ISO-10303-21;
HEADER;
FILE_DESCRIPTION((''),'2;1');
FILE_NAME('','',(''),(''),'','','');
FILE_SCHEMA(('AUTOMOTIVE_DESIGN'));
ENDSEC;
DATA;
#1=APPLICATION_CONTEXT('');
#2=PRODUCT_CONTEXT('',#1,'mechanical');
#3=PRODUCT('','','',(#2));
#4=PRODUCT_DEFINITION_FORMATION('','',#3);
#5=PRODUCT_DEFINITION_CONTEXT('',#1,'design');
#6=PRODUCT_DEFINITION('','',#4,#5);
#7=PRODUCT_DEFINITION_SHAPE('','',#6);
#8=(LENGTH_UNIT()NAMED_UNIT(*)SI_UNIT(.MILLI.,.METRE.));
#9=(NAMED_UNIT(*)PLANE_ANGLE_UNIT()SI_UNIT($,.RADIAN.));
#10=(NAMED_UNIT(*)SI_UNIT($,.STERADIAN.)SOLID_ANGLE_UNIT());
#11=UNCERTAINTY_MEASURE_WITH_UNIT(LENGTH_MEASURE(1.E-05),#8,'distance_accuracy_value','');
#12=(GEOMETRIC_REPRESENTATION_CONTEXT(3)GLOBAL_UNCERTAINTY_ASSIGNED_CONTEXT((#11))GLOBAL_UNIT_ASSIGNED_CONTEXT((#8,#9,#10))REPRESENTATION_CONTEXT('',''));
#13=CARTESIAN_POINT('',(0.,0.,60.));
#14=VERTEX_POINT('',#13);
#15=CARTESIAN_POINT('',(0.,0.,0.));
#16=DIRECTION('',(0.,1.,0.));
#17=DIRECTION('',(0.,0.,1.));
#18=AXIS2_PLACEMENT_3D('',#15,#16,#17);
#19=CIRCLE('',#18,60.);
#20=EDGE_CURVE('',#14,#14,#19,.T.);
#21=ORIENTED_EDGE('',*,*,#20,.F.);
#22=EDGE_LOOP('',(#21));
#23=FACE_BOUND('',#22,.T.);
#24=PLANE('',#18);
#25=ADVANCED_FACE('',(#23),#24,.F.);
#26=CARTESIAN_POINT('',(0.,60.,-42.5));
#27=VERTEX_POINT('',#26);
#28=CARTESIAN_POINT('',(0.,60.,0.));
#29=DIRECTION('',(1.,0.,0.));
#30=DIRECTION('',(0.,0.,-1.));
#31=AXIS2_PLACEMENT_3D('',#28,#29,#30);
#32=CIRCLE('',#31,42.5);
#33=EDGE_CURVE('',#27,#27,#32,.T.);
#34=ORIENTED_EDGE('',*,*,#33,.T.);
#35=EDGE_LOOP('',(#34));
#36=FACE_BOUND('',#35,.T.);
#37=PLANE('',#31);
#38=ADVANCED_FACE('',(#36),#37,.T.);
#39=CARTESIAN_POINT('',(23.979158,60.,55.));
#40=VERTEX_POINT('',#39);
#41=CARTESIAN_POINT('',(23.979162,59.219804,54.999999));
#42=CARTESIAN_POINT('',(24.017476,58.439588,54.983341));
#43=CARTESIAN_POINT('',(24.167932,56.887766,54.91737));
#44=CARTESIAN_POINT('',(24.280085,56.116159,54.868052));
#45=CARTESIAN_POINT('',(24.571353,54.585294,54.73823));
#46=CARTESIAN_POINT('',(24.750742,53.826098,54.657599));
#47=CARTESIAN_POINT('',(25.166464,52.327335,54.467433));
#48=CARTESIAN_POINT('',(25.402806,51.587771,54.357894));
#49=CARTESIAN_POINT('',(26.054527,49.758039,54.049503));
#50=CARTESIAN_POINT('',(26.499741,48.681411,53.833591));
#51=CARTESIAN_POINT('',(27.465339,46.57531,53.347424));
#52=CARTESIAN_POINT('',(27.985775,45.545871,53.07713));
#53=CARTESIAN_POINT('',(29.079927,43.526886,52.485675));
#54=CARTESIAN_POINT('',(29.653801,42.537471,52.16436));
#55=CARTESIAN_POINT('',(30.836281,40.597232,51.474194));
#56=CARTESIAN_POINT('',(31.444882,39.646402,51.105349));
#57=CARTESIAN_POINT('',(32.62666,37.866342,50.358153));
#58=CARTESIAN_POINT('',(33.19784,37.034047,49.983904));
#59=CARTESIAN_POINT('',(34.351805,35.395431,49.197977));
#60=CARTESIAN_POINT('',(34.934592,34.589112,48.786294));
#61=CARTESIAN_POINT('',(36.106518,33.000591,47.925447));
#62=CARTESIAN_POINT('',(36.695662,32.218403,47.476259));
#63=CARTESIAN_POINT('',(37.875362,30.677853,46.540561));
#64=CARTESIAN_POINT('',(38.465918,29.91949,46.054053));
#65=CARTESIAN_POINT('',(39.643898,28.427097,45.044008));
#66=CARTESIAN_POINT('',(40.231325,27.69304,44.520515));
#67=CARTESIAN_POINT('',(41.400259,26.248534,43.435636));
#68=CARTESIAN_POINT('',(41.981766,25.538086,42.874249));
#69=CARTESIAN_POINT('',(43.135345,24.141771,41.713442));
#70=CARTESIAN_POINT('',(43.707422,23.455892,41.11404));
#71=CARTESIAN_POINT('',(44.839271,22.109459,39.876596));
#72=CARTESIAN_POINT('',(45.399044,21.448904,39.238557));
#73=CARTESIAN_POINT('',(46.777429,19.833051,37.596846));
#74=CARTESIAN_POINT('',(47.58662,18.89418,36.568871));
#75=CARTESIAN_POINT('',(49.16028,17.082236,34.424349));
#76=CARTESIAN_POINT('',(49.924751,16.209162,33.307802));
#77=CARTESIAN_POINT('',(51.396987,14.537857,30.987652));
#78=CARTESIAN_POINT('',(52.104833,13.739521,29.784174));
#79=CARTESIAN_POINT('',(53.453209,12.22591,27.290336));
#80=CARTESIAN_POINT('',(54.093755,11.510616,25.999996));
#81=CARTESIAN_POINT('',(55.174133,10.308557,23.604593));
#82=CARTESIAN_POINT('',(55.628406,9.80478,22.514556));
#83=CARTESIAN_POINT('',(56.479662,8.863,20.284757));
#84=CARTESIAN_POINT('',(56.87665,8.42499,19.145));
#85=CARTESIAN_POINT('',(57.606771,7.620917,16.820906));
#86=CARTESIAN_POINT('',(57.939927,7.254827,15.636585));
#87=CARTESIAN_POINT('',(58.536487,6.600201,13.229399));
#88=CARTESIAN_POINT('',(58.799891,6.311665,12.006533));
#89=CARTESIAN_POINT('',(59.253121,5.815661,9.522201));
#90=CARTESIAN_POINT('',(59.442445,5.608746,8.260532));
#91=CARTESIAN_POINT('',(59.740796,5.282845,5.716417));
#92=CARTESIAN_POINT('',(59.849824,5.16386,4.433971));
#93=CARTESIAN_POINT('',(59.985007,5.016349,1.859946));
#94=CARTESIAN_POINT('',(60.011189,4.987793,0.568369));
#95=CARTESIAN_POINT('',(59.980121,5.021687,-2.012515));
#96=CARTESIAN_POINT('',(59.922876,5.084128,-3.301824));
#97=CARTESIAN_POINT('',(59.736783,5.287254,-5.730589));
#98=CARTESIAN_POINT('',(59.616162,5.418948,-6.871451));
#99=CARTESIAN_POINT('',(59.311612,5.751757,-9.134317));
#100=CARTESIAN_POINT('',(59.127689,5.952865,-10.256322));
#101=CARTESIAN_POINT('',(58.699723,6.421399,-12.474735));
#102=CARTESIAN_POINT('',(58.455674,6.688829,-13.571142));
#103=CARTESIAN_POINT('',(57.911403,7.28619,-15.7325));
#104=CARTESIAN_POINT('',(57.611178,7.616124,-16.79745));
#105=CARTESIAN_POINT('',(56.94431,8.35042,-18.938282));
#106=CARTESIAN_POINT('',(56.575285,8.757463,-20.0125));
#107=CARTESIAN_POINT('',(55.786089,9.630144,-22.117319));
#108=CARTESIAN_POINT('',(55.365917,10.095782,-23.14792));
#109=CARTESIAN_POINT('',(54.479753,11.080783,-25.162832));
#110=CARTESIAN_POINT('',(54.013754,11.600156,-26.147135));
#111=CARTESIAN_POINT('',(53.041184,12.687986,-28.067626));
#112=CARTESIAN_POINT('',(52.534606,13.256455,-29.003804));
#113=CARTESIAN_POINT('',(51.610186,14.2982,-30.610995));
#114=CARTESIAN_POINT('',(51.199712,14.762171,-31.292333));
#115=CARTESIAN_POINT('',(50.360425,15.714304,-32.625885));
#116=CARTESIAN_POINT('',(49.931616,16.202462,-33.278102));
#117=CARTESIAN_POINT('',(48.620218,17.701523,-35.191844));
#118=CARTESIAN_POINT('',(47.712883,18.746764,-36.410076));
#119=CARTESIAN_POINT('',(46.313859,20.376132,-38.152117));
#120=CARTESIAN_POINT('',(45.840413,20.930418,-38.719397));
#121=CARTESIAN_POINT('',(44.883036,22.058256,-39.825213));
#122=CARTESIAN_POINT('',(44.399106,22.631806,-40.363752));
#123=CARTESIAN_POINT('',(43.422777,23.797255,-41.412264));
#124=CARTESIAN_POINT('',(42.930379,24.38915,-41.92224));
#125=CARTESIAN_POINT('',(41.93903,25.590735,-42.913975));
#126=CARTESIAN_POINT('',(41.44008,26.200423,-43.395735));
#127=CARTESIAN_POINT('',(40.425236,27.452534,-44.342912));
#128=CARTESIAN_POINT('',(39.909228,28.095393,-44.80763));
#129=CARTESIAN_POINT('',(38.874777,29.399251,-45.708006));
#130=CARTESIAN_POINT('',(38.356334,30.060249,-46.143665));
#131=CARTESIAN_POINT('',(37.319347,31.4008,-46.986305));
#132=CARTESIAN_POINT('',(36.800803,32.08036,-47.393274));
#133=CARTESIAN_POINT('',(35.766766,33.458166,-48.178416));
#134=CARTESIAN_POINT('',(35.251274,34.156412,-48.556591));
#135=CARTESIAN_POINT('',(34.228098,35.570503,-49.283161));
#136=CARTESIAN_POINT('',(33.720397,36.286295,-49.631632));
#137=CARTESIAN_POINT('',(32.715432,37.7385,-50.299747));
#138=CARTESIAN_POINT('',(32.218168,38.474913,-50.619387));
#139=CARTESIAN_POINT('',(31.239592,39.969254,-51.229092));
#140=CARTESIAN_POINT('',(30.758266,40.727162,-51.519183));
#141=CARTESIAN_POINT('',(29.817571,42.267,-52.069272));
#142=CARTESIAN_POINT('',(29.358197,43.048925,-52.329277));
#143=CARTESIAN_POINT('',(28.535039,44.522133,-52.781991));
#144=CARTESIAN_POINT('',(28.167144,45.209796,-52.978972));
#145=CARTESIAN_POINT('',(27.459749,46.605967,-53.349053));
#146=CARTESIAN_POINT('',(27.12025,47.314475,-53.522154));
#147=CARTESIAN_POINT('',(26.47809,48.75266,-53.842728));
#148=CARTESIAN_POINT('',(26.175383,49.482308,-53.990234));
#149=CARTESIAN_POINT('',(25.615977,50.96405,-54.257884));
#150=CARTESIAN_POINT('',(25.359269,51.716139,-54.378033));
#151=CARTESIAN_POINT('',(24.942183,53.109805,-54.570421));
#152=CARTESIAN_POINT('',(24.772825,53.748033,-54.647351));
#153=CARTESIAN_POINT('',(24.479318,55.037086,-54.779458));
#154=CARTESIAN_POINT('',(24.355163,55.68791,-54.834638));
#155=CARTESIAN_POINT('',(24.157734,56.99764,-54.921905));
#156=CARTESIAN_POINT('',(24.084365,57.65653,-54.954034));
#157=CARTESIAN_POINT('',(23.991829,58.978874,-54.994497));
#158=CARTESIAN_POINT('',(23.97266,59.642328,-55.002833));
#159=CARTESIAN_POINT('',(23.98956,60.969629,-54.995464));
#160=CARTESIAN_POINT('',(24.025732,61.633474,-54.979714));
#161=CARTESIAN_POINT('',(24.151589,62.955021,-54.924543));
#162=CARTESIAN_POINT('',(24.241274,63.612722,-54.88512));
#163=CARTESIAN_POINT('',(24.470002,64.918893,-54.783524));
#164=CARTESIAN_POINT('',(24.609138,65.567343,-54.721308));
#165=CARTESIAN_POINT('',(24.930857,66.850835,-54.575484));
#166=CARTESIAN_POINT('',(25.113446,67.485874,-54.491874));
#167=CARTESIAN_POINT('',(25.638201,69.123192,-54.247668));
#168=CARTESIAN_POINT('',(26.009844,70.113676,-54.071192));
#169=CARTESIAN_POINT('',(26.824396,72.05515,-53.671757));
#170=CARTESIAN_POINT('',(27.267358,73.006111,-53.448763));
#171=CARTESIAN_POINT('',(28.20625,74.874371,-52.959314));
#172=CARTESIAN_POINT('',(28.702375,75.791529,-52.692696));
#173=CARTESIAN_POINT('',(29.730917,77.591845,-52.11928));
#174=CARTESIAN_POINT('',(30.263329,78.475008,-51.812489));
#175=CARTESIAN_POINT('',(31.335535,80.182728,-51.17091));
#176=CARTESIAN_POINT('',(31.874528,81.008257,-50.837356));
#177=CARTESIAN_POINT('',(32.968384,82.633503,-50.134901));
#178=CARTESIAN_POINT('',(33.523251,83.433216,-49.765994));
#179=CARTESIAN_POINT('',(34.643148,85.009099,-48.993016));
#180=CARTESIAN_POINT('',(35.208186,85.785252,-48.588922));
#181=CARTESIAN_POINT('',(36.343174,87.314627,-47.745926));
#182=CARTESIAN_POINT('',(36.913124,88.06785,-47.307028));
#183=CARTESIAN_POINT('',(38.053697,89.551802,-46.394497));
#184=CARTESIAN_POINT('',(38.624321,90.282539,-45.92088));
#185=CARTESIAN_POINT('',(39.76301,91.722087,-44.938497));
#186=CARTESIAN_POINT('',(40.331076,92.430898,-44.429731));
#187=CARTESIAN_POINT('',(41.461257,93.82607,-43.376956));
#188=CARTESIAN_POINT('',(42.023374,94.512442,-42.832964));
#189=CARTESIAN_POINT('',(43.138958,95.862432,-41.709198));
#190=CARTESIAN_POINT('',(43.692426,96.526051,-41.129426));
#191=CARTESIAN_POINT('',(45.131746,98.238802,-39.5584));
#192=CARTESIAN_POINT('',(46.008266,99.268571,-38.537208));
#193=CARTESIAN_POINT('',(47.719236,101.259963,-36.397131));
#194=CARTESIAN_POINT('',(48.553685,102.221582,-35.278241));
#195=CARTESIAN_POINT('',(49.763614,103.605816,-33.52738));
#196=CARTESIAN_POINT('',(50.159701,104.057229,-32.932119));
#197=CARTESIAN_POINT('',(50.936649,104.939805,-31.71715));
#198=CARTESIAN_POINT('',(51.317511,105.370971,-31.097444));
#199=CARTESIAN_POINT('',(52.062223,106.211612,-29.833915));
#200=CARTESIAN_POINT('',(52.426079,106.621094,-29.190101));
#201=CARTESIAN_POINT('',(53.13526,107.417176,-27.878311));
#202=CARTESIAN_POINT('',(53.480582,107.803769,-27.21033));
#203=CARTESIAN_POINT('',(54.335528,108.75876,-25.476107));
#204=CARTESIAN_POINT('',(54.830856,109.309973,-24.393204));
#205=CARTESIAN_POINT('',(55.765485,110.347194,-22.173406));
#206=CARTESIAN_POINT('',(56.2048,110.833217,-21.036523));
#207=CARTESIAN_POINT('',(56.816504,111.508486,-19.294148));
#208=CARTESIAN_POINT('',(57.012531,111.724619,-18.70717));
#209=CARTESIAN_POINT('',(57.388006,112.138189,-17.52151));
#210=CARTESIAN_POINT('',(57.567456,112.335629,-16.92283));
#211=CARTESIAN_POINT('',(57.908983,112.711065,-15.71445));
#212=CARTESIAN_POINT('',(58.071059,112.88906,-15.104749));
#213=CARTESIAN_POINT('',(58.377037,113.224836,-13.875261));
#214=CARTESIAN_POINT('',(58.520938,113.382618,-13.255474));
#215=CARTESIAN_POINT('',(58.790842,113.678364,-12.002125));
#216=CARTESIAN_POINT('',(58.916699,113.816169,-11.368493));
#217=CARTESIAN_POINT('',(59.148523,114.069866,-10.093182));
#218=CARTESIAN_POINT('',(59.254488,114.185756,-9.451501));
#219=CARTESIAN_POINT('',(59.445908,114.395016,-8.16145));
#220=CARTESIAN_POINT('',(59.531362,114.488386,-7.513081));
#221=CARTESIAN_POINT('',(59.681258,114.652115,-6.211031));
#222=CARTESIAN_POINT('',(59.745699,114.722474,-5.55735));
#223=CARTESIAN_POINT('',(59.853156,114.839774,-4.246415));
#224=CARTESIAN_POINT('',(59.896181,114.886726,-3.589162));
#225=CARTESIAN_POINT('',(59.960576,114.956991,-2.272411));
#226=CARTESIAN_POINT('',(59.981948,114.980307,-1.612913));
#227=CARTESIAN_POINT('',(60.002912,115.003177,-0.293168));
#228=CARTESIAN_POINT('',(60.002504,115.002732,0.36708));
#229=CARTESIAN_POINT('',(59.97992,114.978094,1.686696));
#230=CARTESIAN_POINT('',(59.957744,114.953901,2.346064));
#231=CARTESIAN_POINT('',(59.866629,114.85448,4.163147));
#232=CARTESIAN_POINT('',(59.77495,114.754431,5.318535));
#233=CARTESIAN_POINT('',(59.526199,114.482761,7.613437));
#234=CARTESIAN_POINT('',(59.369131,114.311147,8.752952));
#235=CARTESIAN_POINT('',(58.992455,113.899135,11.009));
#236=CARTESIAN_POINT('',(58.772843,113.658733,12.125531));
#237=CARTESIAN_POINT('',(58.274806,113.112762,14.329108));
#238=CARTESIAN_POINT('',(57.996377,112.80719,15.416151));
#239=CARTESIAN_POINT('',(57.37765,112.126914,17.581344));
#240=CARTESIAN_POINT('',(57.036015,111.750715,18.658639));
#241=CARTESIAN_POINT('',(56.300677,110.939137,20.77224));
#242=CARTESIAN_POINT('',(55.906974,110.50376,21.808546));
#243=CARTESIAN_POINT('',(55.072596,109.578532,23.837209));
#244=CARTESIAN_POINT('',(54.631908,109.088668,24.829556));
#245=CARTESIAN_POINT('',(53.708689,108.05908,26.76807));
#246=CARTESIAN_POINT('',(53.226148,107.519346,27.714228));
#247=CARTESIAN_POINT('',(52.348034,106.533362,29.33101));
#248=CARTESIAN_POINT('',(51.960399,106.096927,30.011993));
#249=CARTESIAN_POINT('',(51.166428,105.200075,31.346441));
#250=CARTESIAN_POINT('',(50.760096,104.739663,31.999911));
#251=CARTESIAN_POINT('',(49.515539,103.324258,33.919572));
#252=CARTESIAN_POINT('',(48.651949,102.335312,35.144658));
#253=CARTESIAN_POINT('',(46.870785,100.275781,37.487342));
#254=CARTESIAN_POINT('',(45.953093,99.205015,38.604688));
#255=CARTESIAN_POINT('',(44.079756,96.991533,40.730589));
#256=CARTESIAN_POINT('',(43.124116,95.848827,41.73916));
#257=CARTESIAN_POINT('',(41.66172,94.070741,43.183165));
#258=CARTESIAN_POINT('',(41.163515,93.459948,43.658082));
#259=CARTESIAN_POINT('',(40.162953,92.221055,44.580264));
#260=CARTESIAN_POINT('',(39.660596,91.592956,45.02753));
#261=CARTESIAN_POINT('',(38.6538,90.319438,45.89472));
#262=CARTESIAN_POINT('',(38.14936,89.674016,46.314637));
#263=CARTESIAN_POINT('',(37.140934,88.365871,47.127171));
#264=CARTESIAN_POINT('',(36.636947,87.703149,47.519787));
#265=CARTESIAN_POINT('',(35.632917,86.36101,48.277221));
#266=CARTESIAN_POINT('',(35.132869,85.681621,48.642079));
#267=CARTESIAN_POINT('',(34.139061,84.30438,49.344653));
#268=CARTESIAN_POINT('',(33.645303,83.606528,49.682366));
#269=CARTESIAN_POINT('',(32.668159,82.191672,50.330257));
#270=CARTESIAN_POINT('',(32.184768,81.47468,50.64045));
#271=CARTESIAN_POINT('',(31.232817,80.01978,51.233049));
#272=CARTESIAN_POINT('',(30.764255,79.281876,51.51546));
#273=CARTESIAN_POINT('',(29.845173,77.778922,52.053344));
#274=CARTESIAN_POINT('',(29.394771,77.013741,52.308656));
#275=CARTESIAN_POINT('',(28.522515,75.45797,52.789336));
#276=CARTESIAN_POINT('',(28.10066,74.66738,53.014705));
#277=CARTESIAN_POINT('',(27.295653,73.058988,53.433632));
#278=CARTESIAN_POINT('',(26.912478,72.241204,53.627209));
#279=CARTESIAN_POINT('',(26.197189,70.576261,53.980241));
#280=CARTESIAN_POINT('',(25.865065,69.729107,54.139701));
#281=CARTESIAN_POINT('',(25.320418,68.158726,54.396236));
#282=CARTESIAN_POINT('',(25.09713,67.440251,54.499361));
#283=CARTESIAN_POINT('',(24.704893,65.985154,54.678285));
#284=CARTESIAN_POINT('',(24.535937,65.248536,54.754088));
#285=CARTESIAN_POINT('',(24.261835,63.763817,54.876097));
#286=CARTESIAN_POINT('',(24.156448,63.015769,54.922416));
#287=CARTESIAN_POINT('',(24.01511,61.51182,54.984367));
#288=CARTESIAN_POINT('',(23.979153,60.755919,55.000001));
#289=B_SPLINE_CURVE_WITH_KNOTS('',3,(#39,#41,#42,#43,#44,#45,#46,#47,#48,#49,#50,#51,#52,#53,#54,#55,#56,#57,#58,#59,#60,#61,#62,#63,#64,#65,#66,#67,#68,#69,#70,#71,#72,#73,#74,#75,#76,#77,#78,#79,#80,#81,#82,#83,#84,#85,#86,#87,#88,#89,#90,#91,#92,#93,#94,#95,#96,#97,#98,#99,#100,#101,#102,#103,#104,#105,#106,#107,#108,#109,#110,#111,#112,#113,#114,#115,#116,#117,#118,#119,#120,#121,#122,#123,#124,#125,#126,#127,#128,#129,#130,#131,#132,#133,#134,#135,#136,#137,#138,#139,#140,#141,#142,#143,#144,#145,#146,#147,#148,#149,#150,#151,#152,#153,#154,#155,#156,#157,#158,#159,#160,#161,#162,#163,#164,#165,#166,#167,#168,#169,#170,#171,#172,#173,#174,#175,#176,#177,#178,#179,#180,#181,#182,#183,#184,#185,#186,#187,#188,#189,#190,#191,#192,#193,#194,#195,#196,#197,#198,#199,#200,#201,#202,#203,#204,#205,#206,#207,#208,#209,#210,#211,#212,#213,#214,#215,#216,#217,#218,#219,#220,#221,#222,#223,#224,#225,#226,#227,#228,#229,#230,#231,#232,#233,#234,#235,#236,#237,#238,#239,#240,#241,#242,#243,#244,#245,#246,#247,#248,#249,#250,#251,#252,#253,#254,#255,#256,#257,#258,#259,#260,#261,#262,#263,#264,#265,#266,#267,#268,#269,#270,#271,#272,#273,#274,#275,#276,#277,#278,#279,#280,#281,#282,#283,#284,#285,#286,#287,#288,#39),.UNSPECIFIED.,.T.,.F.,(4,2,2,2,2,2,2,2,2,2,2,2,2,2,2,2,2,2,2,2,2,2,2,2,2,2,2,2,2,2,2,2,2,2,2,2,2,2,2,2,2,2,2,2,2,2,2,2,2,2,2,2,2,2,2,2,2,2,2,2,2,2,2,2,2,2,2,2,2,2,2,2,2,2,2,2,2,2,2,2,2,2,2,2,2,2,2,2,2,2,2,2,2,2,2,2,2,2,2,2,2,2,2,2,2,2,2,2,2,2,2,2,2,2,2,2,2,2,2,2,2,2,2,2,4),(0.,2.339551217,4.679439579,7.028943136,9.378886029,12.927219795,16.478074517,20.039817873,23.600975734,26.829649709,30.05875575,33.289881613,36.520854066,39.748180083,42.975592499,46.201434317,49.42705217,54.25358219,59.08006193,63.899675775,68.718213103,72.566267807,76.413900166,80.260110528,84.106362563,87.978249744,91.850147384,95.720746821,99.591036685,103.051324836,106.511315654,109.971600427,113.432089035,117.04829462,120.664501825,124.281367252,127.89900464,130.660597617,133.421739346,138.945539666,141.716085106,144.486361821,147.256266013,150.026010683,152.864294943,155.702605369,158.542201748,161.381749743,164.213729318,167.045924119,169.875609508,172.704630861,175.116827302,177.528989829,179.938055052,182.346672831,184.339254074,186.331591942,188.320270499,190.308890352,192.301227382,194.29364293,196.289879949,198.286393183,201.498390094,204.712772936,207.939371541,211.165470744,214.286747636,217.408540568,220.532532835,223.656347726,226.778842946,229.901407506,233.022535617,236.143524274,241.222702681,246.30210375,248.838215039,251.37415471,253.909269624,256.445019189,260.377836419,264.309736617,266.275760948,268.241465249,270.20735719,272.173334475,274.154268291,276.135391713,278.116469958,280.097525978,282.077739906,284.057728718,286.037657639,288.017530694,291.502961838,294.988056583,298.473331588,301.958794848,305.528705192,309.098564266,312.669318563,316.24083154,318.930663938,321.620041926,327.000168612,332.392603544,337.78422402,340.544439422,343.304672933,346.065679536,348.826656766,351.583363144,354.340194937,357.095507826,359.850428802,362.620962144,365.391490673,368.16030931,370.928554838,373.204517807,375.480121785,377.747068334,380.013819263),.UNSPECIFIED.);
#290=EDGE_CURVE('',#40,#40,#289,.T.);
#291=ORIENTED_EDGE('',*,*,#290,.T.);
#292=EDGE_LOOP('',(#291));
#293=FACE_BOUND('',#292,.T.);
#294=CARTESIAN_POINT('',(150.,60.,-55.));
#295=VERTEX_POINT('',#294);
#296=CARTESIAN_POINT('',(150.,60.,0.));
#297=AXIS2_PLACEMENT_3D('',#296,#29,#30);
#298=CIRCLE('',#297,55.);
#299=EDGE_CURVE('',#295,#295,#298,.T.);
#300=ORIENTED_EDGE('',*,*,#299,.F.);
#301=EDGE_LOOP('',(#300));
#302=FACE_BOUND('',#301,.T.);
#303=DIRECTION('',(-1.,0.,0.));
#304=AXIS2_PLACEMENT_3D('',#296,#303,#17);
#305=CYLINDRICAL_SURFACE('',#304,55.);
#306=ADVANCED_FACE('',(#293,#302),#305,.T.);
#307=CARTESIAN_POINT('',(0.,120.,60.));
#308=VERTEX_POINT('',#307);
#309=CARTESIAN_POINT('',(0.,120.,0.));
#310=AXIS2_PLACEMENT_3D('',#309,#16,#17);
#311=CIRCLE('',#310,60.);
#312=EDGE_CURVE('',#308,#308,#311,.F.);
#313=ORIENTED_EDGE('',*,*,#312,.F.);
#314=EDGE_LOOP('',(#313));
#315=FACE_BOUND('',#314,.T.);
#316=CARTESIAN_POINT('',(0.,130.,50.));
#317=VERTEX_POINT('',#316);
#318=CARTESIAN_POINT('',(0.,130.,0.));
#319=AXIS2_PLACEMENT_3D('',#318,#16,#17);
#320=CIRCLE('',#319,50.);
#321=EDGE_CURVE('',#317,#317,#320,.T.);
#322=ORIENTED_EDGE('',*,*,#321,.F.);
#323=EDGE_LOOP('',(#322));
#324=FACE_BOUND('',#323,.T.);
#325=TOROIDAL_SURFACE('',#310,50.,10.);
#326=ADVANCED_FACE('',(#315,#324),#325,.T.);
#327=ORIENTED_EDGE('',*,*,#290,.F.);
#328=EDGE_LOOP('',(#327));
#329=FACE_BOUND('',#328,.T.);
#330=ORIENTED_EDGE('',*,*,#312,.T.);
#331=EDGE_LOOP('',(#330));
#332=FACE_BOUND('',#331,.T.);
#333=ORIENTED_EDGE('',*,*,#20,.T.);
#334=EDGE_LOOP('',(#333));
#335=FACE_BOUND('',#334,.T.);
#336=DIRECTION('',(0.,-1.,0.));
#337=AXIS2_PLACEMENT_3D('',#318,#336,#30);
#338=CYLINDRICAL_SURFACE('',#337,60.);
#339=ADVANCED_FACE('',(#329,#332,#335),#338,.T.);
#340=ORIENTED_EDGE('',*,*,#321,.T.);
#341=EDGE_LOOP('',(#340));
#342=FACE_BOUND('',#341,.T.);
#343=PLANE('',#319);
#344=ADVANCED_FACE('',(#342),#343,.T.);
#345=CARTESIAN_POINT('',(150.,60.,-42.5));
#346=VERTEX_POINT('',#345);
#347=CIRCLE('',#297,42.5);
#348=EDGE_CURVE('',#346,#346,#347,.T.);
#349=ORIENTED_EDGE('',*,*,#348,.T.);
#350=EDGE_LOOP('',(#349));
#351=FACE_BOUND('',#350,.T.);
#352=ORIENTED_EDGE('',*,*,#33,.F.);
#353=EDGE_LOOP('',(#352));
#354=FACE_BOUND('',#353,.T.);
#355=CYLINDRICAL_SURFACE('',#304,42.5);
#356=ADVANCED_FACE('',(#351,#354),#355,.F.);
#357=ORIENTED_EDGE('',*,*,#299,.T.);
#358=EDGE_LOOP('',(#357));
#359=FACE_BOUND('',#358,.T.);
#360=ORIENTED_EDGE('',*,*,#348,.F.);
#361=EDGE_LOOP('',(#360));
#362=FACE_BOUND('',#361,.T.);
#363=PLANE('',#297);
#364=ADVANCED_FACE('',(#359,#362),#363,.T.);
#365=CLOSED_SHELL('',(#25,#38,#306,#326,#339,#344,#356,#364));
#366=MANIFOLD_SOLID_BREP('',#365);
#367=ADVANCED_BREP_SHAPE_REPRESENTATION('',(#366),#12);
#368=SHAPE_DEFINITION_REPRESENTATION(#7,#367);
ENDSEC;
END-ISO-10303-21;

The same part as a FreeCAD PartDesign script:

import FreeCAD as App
import Part
import Sketcher
from FreeCAD import Vector


def edges_at(feature, points):
    """Names of the edges that pass closest to the given points."""
    edges = feature.Shape.Edges
    near = lambda p: min(range(len(edges)), key=lambda i: edges[i].distToShape(Part.Vertex(*p))[0])
    return sorted({f"Edge{near(p) + 1}" for p in points})

doc = App.newDocument("Part")
body = doc.addObject("PartDesign::Body", "Body")

sketch1 = body.newObject("Sketcher::SketchObject", "Sketch")
sketch1.AttachmentSupport = (doc.getObject("XZ_Plane"), [""])
sketch1.MapMode = "FlatFace"
sketch1.addGeometry(Part.Circle(Vector(0, 0, 0), Vector(0, 0, 1), 60), False)
sketch1.addConstraint(Sketcher.Constraint("Coincident", 0, 3, -1, 1))
sketch1.addConstraint(Sketcher.Constraint("Diameter", 0, 120.0))
pad1 = body.newObject("PartDesign::Pad", "Pad")
pad1.Profile = sketch1
pad1.Length = 130
pad1.Reversed = True
doc.recompute()

fillet = body.newObject("PartDesign::Fillet", "Fillet")
fillet.Base = (pad1, edges_at(pad1, [(-60, 130, 0)]))
fillet.Radius = 10

sketch2 = body.newObject("Sketcher::SketchObject", "Sketch001")
sketch2.AttachmentSupport = (doc.getObject("YZ_Plane"), [""])
sketch2.MapMode = "FlatFace"
sketch2.addGeometry(Part.Circle(Vector(60, 0, 0), Vector(0, 0, 1), 55), False)
sketch2.addConstraint(Sketcher.Constraint("PointOnObject", 0, 3, -1))
sketch2.addConstraint(Sketcher.Constraint("Diameter", 0, 110.0))
sketch2.addConstraint(Sketcher.Constraint("DistanceX", -1, 1, 0, 3, 60.0))
pad2 = body.newObject("PartDesign::Pad", "Pad001")
pad2.Profile = sketch2
pad2.Length = 150

sketch3 = body.newObject("Sketcher::SketchObject", "Sketch002")
sketch3.AttachmentSupport = (doc.getObject("YZ_Plane"), [""])
sketch3.MapMode = "FlatFace"
sketch3.addGeometry(Part.Circle(Vector(60, 0, 0), Vector(0, 0, 1), 42), False)
sketch3.addConstraint(Sketcher.Constraint("PointOnObject", 0, 3, -1))
sketch3.addConstraint(Sketcher.Constraint("Diameter", 0, 85.0))
sketch3.addConstraint(Sketcher.Constraint("DistanceX", -1, 1, 0, 3, 60.0))
pocket1 = body.newObject("PartDesign::Pocket", "Pocket")
pocket1.Profile = sketch3
pocket1.Length = 150
pocket1.Reversed = True

doc.recompute()
